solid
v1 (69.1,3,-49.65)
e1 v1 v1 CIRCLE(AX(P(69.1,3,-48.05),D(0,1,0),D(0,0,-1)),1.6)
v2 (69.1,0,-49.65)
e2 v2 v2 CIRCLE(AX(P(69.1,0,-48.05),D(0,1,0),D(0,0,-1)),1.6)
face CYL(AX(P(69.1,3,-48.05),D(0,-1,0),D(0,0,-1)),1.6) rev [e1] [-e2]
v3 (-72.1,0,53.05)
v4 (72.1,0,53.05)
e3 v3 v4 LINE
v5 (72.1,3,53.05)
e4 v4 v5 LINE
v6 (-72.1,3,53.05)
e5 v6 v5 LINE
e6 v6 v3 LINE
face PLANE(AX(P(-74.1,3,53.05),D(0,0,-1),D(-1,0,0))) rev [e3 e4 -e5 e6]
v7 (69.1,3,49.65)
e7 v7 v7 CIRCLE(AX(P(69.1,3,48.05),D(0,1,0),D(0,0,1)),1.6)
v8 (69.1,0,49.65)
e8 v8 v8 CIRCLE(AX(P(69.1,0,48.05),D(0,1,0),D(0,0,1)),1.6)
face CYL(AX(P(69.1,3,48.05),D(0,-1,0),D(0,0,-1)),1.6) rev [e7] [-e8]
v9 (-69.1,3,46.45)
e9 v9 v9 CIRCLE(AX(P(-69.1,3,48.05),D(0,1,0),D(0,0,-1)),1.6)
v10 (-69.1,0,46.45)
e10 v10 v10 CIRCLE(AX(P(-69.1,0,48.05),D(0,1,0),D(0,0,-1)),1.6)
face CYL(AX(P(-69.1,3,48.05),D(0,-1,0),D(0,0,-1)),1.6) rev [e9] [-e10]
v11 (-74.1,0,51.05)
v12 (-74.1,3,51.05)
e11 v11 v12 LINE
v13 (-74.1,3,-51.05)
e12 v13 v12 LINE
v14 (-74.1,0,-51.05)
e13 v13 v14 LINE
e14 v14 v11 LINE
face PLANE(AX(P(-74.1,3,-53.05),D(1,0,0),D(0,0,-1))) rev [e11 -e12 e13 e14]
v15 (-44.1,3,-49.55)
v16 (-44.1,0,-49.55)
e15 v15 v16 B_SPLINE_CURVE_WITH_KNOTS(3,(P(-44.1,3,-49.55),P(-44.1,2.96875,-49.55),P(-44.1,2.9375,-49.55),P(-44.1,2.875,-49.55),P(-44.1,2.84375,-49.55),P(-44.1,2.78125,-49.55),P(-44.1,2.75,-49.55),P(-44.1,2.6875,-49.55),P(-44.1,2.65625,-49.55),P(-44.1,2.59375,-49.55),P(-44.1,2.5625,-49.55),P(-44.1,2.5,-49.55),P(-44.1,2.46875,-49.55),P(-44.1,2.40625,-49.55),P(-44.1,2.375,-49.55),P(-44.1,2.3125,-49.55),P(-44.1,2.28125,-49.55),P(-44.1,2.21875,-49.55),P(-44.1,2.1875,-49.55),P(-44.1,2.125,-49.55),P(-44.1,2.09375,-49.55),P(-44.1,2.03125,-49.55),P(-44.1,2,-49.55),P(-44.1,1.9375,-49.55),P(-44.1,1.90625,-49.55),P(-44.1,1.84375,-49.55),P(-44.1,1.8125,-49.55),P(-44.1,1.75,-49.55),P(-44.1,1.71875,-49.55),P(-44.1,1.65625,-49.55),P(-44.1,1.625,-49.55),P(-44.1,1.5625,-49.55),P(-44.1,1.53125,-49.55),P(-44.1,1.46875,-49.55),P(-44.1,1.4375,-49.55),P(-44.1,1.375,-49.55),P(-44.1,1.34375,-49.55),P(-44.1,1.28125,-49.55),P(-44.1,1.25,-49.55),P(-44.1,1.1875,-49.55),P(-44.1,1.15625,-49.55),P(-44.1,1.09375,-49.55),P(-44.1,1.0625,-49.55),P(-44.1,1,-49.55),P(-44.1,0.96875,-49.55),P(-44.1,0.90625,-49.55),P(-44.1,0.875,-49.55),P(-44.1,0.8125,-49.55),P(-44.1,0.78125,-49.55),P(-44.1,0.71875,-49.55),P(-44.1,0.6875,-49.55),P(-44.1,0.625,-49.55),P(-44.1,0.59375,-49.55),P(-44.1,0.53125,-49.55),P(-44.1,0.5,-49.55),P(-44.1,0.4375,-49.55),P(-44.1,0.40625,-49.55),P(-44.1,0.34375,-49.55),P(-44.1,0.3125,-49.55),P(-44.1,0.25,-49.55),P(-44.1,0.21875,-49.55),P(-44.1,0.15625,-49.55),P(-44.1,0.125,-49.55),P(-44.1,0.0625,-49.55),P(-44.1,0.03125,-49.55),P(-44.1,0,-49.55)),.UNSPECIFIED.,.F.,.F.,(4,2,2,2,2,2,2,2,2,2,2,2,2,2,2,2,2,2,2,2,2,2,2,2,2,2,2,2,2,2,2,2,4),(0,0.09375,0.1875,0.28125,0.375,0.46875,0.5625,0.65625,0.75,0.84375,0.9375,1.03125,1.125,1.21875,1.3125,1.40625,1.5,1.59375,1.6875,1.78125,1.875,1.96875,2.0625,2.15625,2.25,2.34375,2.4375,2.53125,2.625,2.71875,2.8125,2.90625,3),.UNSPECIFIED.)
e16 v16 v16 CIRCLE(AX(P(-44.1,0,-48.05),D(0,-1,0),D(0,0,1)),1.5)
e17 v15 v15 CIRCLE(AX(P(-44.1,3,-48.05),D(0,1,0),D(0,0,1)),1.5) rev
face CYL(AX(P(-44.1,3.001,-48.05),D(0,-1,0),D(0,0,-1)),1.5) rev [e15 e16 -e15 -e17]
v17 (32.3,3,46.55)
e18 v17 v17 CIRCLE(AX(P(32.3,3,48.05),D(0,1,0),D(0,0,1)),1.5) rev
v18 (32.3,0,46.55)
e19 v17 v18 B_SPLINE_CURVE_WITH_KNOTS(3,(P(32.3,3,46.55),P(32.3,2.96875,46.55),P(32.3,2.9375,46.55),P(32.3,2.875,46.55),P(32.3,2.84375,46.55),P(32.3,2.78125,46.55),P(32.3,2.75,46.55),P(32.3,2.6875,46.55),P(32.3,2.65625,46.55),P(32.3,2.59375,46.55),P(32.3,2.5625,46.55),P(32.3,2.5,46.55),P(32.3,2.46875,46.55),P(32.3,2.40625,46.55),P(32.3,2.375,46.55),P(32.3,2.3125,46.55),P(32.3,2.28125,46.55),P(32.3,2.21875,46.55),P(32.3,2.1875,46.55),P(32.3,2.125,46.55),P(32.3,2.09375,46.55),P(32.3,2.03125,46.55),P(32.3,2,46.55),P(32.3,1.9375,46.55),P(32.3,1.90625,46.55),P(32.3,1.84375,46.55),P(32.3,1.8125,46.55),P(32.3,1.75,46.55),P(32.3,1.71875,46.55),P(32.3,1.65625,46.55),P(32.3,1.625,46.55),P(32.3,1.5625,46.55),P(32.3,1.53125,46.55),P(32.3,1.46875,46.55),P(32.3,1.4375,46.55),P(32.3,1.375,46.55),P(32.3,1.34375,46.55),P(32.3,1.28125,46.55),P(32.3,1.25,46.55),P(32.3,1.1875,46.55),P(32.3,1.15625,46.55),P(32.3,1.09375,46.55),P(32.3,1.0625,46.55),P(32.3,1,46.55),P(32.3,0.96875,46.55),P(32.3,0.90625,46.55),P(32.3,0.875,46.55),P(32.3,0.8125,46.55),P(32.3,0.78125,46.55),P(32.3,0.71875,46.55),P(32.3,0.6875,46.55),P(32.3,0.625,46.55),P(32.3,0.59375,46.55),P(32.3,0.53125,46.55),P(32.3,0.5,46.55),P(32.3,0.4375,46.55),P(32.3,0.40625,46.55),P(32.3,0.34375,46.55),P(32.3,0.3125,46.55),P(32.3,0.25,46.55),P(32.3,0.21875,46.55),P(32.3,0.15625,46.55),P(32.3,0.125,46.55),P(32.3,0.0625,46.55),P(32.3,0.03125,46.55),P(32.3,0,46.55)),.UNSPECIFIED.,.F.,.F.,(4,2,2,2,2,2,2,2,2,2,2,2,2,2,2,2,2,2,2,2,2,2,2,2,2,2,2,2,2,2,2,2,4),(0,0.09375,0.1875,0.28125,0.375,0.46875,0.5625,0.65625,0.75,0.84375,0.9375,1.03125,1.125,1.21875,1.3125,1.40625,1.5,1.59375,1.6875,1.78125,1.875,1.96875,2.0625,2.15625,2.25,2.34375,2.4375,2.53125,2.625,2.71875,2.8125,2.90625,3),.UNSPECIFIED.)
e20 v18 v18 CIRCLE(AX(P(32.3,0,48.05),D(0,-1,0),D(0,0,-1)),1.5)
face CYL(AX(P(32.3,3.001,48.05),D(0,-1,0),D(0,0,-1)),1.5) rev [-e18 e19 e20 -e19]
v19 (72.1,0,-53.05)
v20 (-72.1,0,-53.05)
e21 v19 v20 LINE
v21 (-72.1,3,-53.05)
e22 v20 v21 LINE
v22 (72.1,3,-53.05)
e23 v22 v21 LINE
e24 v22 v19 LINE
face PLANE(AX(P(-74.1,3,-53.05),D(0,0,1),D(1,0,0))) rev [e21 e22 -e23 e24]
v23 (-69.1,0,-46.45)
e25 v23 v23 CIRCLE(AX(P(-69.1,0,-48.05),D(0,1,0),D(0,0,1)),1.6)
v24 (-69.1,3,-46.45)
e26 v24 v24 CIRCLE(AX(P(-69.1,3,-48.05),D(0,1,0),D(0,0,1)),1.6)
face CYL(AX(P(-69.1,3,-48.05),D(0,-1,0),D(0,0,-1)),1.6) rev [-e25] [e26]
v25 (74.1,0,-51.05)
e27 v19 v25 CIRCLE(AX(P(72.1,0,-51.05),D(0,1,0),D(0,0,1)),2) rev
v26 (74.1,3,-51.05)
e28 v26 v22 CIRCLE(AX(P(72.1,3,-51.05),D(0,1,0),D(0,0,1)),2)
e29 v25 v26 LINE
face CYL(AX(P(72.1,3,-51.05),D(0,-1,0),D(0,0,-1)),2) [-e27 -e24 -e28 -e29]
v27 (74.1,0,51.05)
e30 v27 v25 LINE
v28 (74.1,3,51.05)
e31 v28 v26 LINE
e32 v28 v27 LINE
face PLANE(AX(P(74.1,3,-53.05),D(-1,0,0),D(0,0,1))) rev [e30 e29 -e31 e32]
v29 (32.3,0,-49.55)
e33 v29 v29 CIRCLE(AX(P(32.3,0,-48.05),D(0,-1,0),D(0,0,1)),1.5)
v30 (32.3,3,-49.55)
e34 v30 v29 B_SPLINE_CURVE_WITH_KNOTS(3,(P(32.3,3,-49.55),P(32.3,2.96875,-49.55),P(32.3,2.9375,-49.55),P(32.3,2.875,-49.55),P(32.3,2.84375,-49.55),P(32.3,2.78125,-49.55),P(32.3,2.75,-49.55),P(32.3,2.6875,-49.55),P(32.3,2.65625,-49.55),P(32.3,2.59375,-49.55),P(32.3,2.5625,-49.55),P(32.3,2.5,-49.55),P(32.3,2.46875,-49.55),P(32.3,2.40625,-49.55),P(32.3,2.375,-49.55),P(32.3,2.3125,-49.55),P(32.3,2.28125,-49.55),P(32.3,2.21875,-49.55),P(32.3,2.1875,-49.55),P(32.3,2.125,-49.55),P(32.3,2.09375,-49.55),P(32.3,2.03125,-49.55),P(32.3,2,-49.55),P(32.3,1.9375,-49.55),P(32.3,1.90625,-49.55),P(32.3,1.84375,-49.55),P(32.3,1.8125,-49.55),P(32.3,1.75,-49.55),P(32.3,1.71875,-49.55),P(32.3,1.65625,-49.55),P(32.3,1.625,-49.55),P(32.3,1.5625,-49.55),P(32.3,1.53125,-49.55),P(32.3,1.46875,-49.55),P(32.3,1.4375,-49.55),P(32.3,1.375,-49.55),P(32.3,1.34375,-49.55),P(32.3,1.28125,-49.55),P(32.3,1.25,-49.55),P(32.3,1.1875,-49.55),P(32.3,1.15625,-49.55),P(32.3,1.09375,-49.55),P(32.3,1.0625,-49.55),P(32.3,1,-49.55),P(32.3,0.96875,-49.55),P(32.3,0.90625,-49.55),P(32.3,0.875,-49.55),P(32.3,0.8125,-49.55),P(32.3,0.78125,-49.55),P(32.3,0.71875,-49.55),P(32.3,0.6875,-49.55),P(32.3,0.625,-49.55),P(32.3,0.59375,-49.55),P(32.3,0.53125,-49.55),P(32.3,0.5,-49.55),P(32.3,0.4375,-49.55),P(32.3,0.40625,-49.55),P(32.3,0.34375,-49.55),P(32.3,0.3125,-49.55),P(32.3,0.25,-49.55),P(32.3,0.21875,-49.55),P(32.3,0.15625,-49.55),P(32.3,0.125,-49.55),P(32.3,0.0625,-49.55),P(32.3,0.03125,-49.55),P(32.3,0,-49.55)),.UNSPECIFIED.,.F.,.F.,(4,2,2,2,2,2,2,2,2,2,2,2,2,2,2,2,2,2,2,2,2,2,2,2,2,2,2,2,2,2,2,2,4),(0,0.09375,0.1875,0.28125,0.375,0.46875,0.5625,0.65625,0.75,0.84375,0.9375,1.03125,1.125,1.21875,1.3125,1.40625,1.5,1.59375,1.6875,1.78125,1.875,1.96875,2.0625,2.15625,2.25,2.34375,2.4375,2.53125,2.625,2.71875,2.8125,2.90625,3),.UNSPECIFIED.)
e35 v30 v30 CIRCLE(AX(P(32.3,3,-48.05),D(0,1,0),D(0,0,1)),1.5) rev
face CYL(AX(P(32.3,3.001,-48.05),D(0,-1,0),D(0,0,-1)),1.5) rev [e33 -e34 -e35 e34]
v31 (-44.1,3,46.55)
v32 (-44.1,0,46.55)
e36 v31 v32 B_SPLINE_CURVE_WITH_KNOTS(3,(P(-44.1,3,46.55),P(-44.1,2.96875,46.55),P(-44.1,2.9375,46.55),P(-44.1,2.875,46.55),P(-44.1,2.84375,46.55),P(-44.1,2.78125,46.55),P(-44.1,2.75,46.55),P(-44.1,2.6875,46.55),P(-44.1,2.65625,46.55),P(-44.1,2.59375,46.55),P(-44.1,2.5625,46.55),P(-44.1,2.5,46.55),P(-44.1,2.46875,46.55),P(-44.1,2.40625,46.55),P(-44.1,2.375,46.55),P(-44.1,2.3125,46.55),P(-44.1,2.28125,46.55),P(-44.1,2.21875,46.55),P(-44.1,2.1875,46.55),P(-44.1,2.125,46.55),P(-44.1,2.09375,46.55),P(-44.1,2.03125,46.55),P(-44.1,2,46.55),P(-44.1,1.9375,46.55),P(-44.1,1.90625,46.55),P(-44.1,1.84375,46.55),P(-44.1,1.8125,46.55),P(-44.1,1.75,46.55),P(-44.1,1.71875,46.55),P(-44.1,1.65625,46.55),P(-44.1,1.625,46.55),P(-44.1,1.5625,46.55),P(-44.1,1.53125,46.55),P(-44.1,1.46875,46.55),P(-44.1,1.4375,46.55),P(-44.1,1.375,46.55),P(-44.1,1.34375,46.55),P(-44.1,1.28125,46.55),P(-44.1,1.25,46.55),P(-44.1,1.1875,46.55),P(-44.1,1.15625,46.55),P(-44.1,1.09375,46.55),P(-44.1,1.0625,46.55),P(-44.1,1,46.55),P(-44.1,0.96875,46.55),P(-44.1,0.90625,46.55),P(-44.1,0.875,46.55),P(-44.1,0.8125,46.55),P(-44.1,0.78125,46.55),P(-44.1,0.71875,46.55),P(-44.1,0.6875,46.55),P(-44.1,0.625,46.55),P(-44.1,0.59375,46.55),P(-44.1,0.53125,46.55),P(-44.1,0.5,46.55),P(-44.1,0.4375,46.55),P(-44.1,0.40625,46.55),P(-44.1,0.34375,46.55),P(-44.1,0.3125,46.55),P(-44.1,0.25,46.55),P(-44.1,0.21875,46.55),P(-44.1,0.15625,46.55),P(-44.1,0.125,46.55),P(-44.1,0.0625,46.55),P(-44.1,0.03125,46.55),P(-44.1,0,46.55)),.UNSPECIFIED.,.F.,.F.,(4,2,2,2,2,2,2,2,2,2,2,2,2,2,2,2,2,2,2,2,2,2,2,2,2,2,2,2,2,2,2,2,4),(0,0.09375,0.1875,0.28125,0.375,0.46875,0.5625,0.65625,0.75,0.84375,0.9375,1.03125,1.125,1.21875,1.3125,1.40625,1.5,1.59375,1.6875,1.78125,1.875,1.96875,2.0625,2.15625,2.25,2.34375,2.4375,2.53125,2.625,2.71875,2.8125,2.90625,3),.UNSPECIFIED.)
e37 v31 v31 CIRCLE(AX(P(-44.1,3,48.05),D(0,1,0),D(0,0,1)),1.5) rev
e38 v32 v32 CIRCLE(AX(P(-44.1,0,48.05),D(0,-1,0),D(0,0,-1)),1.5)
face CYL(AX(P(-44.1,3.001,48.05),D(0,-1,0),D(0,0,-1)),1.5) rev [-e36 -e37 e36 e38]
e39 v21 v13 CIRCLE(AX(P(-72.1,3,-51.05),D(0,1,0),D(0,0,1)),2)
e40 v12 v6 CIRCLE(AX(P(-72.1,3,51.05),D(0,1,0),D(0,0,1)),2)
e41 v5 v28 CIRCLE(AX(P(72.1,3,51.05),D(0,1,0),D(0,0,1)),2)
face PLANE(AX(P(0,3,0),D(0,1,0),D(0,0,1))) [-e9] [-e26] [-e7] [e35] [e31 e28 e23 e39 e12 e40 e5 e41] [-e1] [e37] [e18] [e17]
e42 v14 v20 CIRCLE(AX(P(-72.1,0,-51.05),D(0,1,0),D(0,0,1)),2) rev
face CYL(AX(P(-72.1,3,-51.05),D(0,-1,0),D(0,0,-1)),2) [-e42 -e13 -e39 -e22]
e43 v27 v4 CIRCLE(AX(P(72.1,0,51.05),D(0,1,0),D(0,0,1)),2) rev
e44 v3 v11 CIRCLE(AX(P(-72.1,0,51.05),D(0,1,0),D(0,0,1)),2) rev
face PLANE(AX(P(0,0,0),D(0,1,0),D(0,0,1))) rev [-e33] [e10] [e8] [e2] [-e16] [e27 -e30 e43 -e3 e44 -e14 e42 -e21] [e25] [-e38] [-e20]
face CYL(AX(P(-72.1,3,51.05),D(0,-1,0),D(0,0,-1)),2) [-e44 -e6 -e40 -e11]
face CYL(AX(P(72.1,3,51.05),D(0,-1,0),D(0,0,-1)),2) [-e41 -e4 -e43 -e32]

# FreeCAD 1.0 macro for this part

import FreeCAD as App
import Part
import Sketcher

V = App.Vector


def edges_at(feature, points):
    """Names of the edges that pass closest to the given points."""
    edges = feature.Shape.Edges
    near = lambda p: min(range(len(edges)), key=lambda i: edges[i].distToShape(Part.Vertex(*p))[0])
    return sorted({f"Edge{near(p) + 1}" for p in points})

doc = App.newDocument("Part")
body = doc.addObject("PartDesign::Body", "Body")

sketch1 = doc.addObject("Sketcher::SketchObject", "Sketch")
body.addObject(sketch1)
sketch1.AttachmentSupport = (doc.XZ_Plane, [""])
sketch1.MapMode = "FlatFace"
sketch1.addGeometry(Part.LineSegment(V(-74.1, -53, 0), V(-74.1, 53, 0)), False)
sketch1.addGeometry(Part.LineSegment(V(-74.1, 53, 0), V(74.1, 53, 0)), False)
sketch1.addGeometry(Part.LineSegment(V(74.1, 53, 0), V(74.1, -53, 0)), False)
sketch1.addGeometry(Part.LineSegment(V(74.1, -53, 0), V(-74.1, -53, 0)), False)
sketch1.addGeometry(Part.Circle(V(-69.1, 48, 0), V(0, 0, 1), 1.6), False)
sketch1.addGeometry(Part.Circle(V(69.1, 48, 0), V(0, 0, 1), 1.6), False)
sketch1.addGeometry(Part.Circle(V(-69.1, -48, 0), V(0, 0, 1), 1.6), False)
sketch1.addGeometry(Part.Circle(V(69.1, -48, 0), V(0, 0, 1), 1.6), False)
sketch1.addConstraint(Sketcher.Constraint("Coincident", 0, 2, 1, 1))
sketch1.addConstraint(Sketcher.Constraint("Coincident", 1, 2, 2, 1))
sketch1.addConstraint(Sketcher.Constraint("Coincident", 2, 2, 3, 1))
sketch1.addConstraint(Sketcher.Constraint("Coincident", 3, 2, 0, 1))
sketch1.addConstraint(Sketcher.Constraint("Vertical", 0))
sketch1.addConstraint(Sketcher.Constraint("Horizontal", 1))
sketch1.addConstraint(Sketcher.Constraint("Vertical", 2))
sketch1.addConstraint(Sketcher.Constraint("Horizontal", 3))
sketch1.addConstraint(Sketcher.Constraint("Equal", 4, 5))
sketch1.addConstraint(Sketcher.Constraint("Equal", 5, 6))
sketch1.addConstraint(Sketcher.Constraint("Equal", 6, 7))
sketch1.addConstraint(Sketcher.Constraint("Symmetric", 5, 3, 6, 3, -1, 1))
sketch1.addConstraint(Sketcher.Constraint("Symmetric", 4, 3, 7, 3, -1, 1))
sketch1.addConstraint(Sketcher.Constraint("Symmetric", 0, 2, 2, 2, -1, 1))
sketch1.addConstraint(Sketcher.Constraint("Symmetric", 4, 3, 5, 3, -2))
sketch1.addConstraint(Sketcher.Constraint("Diameter", 4, 3.2))
sketch1.addConstraint(Sketcher.Constraint("DistanceX", 1, 1, 1, 2, 148.2))
sketch1.addConstraint(Sketcher.Constraint("DistanceY", 0, 1, 0, 2, 106.1))
sketch1.addConstraint(Sketcher.Constraint("DistanceX", 0, 2, 4, 3, 5.0))
sketch1.addConstraint(Sketcher.Constraint("DistanceY", 4, 3, 0, 2, 5.0))
pad1 = doc.addObject("PartDesign::Pad", "Pad")
body.addObject(pad1)
pad1.Profile = sketch1
pad1.Length = 3
pad1.Reversed = True
doc.recompute()

fillet = doc.addObject("PartDesign::Fillet", "Fillet")
body.addObject(fillet)
fillet.Base = (pad1, edges_at(pad1, [
    (-74.1, 1.5, -53.05),
    (74.1, 1.5, -53.05),
    (74.1, 1.5, 53.05),
    (-74.1, 1.5, 53.05),
]))
fillet.Radius = 2

sketch2 = doc.addObject("Sketcher::SketchObject", "Sketch001")
body.addObject(sketch2)
sketch2.AttachmentSupport = (doc.XZ_Plane, [""])
sketch2.MapMode = "FlatFace"
sketch2.addGeometry(Part.Circle(V(32.3, 48, 0), V(0, 0, 1), 1.5), False)
sketch2.addConstraint(Sketcher.Constraint("Diameter", 0, 3.0))
sketch2.addConstraint(Sketcher.Constraint("DistanceX", -1, 1, 0, 3, 32.3))
sketch2.addConstraint(Sketcher.Constraint("DistanceY", -1, 1, 0, 3, 48.05))
pocket1 = doc.addObject("PartDesign::Pocket", "Pocket")
body.addObject(pocket1)
pocket1.Profile = sketch2
pocket1.Type = "UpToFirst"

sketch3 = doc.addObject("Sketcher::SketchObject", "Sketch002")
body.addObject(sketch3)
sketch3.AttachmentSupport = (doc.XZ_Plane, [""])
sketch3.MapMode = "FlatFace"
sketch3.addGeometry(Part.Circle(V(-44.1, 48, 0), V(0, 0, 1), 1.5), False)
sketch3.addConstraint(Sketcher.Constraint("Diameter", 0, 3.0))
sketch3.addConstraint(Sketcher.Constraint("DistanceX", 0, 3, -1, 1, 44.1))
sketch3.addConstraint(Sketcher.Constraint("DistanceY", -1, 1, 0, 3, 48.05))
pocket2 = doc.addObject("PartDesign::Pocket", "Pocket001")
body.addObject(pocket2)
pocket2.Profile = sketch3
pocket2.Type = "UpToFirst"

sketch4 = doc.addObject("Sketcher::SketchObject", "Sketch003")
body.addObject(sketch4)
sketch4.AttachmentSupport = (doc.XZ_Plane, [""])
sketch4.MapMode = "FlatFace"
sketch4.addGeometry(Part.Circle(V(-44.1, -48, 0), V(0, 0, 1), 1.5), False)
sketch4.addConstraint(Sketcher.Constraint("Diameter", 0, 3.0))
sketch4.addConstraint(Sketcher.Constraint("DistanceX", 0, 3, -1, 1, 44.1))
sketch4.addConstraint(Sketcher.Constraint("DistanceY", 0, 3, -1, 1, 48.05))
pocket3 = doc.addObject("PartDesign::Pocket", "Pocket002")
body.addObject(pocket3)
pocket3.Profile = sketch4
pocket3.Type = "UpToFirst"

sketch5 = doc.addObject("Sketcher::SketchObject", "Sketch004")
body.addObject(sketch5)
sketch5.AttachmentSupport = (doc.XZ_Plane, [""])
sketch5.MapMode = "FlatFace"
sketch5.addGeometry(Part.Circle(V(32.3, -48, 0), V(0, 0, 1), 1.5), False)
sketch5.addConstraint(Sketcher.Constraint("Diameter", 0, 3.0))
sketch5.addConstraint(Sketcher.Constraint("DistanceX", -1, 1, 0, 3, 32.3))
sketch5.addConstraint(Sketcher.Constraint("DistanceY", 0, 3, -1, 1, 48.05))
pocket4 = doc.addObject("PartDesign::Pocket", "Pocket003")
body.addObject(pocket4)
pocket4.Profile = sketch5
pocket4.Type = "UpToFirst"

doc.recompute()
